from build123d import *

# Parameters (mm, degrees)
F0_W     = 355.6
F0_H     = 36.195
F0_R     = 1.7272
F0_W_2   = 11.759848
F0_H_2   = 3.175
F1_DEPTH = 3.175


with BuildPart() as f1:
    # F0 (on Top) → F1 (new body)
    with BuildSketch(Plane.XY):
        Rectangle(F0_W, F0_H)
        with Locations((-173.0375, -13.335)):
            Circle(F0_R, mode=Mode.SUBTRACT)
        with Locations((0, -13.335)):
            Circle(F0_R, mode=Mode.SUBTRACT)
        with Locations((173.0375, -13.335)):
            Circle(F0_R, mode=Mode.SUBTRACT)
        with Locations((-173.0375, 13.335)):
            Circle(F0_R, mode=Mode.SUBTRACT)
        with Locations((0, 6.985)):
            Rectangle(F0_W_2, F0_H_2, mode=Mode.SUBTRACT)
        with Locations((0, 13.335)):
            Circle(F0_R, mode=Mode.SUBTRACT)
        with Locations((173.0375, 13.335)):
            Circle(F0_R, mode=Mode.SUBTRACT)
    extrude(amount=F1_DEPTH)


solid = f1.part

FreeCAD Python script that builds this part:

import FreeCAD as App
import Part
import Sketcher

V = App.Vector
Q = App.Units.Quantity

doc = App.newDocument("Part")
params = doc.addObject("Spreadsheet::Sheet", "Params")
for row, (alias, value) in enumerate([
    ("sketch1_width", "14 in"),
    ("sketch1_diameter", "0.136 in"),
    ("sketch1_height", "1.425 in"),
    ("sketch1_height2", "0.125 in"),
    ("pad1_length", "0.125 in"),
], start=1):
    params.set(f"A{row}", alias)
    params.set(f"B{row}", "=" + value)
    params.setAlias(f"B{row}", alias)

body = doc.addObject("PartDesign::Body", "Body")

sketch1 = body.newObject("Sketcher::SketchObject", "Sketch")
sketch1.AttachmentSupport = (doc.getObject("XY_Plane"), [""])
sketch1.MapMode = "FlatFace"
sketch1.addGeometry(Part.LineSegment(V(-177.8, 18.0975, 0), V(-177.8, -18.0975, 0)), False)
sketch1.addGeometry(Part.LineSegment(V(-177.8, -18.0975, 0), V(177.8, -18.0975, 0)), False)
sketch1.addGeometry(Part.LineSegment(V(177.8, -18.0975, 0), V(177.8, 18.0975, 0)), False)
sketch1.addGeometry(Part.LineSegment(V(177.8, 18.0975, 0), V(-177.8, 18.0975, 0)), False)
sketch1.addGeometry(Part.Circle(V(-173.0375, -13.335, 0), V(0, 0, 1), 1.7272), False)
sketch1.addGeometry(Part.Circle(V(0, -13.335, 0), V(0, 0, 1), 1.7272), False)
sketch1.addGeometry(Part.Circle(V(173.0375, -13.335, 0), V(0, 0, 1), 1.7272), False)
sketch1.addGeometry(Part.LineSegment(V(5.879924, 5.3975, 0), V(-5.879924, 5.3975, 0)), False)
sketch1.addGeometry(Part.LineSegment(V(-5.879924, 5.3975, 0), V(-5.879924, 8.5725, 0)), False)
sketch1.addGeometry(Part.LineSegment(V(-5.879924, 8.5725, 0), V(5.879924, 8.5725, 0)), False)
sketch1.addGeometry(Part.LineSegment(V(5.879924, 8.5725, 0), V(5.879924, 5.3975, 0)), False)
sketch1.addGeometry(Part.Circle(V(-173.0375, 13.335, 0), V(0, 0, 1), 1.7272), False)
sketch1.addGeometry(Part.Circle(V(0, 13.335, 0), V(0, 0, 1), 1.7272), False)
sketch1.addGeometry(Part.Circle(V(173.0375, 13.335, 0), V(0, 0, 1), 1.7272), False)
sketch1.addConstraint(Sketcher.Constraint("Coincident", 0, 2, 1, 1))
sketch1.addConstraint(Sketcher.Constraint("Coincident", 1, 2, 2, 1))
sketch1.addConstraint(Sketcher.Constraint("Coincident", 2, 2, 3, 1))
sketch1.addConstraint(Sketcher.Constraint("Coincident", 3, 2, 0, 1))
sketch1.addConstraint(Sketcher.Constraint("Coincident", 7, 2, 8, 1))
sketch1.addConstraint(Sketcher.Constraint("Coincident", 8, 2, 9, 1))
sketch1.addConstraint(Sketcher.Constraint("Coincident", 9, 2, 10, 1))
sketch1.addConstraint(Sketcher.Constraint("Coincident", 10, 2, 7, 1))
sketch1.addConstraint(Sketcher.Constraint("Vertical", 0))
sketch1.addConstraint(Sketcher.Constraint("Horizontal", 1))
sketch1.addConstraint(Sketcher.Constraint("Vertical", 2))
sketch1.addConstraint(Sketcher.Constraint("Horizontal", 3))
sketch1.addConstraint(Sketcher.Constraint("Horizontal", 7))
sketch1.addConstraint(Sketcher.Constraint("Vertical", 8))
sketch1.addConstraint(Sketcher.Constraint("Horizontal", 9))
sketch1.addConstraint(Sketcher.Constraint("Vertical", 10))
sketch1.addConstraint(Sketcher.Constraint("Equal", 4, 5))
sketch1.addConstraint(Sketcher.Constraint("Equal", 5, 6))
sketch1.addConstraint(Sketcher.Constraint("Equal", 6, 11))
sketch1.addConstraint(Sketcher.Constraint("Equal", 11, 12))
sketch1.addConstraint(Sketcher.Constraint("Equal", 12, 13))
sketch1.addConstraint(Sketcher.Constraint("Symmetric", 6, 3, 11, 3, -1, 1))
sketch1.addConstraint(Sketcher.Constraint("Symmetric", 5, 3, 12, 3, -1, 1))
sketch1.addConstraint(Sketcher.Constraint("Symmetric", 4, 3, 13, 3, -1, 1))
sketch1.addConstraint(Sketcher.Constraint("Symmetric", 0, 2, 2, 2, -1, 1))
sketch1.addConstraint(Sketcher.Constraint("Symmetric", 4, 3, 6, 3, -2))
sketch1.addConstraint(Sketcher.Constraint("PointOnObject", 5, 3, -2))
sketch1.addConstraint(Sketcher.Constraint("Horizontal", 4, 3, 5, 3))
sketch1.addConstraint(Sketcher.Constraint("DistanceX", 1, 1, 1, 2, Q("14 in")))
sketch1.addConstraint(Sketcher.Constraint("Diameter", 4, Q("0.136 in")))
sketch1.addConstraint(Sketcher.Constraint("DistanceY", 7, 2, 3, 2, Q("0.5 in")))
sketch1.addConstraint(Sketcher.Constraint("DistanceY", 0, 2, 0, 1, Q("1.425 in")))
sketch1.addConstraint(Sketcher.Constraint("DistanceY", 8, 1, 8, 2, Q("0.125 in")))
sketch1.addConstraint(Sketcher.Constraint("DistanceY", 4, 3, 11, 3, Q("1.05 in")))
sketch1.addConstraint(Sketcher.Constraint("DistanceX", 4, 3, -1, 1, Q("6.8125 in")))
sketch1.addConstraint(Sketcher.Constraint("DistanceX", 7, 2, 7, 1, Q("11.759848 mm")))
sketch1.addConstraint(Sketcher.Constraint("DistanceX", 7, 2, -1, 1, Q("5.879924 mm")))
sketch1.setExpression("Constraints[28]", "Params.sketch1_width")
sketch1.setExpression("Constraints[29]", "Params.sketch1_diameter")
sketch1.setExpression("Constraints[31]", "Params.sketch1_height")
sketch1.setExpression("Constraints[32]", "Params.sketch1_height2")
pad1 = body.newObject("PartDesign::Pad", "Pad")
pad1.Profile = sketch1
pad1.setExpression("Length", "Params.pad1_length")

doc.recompute()
